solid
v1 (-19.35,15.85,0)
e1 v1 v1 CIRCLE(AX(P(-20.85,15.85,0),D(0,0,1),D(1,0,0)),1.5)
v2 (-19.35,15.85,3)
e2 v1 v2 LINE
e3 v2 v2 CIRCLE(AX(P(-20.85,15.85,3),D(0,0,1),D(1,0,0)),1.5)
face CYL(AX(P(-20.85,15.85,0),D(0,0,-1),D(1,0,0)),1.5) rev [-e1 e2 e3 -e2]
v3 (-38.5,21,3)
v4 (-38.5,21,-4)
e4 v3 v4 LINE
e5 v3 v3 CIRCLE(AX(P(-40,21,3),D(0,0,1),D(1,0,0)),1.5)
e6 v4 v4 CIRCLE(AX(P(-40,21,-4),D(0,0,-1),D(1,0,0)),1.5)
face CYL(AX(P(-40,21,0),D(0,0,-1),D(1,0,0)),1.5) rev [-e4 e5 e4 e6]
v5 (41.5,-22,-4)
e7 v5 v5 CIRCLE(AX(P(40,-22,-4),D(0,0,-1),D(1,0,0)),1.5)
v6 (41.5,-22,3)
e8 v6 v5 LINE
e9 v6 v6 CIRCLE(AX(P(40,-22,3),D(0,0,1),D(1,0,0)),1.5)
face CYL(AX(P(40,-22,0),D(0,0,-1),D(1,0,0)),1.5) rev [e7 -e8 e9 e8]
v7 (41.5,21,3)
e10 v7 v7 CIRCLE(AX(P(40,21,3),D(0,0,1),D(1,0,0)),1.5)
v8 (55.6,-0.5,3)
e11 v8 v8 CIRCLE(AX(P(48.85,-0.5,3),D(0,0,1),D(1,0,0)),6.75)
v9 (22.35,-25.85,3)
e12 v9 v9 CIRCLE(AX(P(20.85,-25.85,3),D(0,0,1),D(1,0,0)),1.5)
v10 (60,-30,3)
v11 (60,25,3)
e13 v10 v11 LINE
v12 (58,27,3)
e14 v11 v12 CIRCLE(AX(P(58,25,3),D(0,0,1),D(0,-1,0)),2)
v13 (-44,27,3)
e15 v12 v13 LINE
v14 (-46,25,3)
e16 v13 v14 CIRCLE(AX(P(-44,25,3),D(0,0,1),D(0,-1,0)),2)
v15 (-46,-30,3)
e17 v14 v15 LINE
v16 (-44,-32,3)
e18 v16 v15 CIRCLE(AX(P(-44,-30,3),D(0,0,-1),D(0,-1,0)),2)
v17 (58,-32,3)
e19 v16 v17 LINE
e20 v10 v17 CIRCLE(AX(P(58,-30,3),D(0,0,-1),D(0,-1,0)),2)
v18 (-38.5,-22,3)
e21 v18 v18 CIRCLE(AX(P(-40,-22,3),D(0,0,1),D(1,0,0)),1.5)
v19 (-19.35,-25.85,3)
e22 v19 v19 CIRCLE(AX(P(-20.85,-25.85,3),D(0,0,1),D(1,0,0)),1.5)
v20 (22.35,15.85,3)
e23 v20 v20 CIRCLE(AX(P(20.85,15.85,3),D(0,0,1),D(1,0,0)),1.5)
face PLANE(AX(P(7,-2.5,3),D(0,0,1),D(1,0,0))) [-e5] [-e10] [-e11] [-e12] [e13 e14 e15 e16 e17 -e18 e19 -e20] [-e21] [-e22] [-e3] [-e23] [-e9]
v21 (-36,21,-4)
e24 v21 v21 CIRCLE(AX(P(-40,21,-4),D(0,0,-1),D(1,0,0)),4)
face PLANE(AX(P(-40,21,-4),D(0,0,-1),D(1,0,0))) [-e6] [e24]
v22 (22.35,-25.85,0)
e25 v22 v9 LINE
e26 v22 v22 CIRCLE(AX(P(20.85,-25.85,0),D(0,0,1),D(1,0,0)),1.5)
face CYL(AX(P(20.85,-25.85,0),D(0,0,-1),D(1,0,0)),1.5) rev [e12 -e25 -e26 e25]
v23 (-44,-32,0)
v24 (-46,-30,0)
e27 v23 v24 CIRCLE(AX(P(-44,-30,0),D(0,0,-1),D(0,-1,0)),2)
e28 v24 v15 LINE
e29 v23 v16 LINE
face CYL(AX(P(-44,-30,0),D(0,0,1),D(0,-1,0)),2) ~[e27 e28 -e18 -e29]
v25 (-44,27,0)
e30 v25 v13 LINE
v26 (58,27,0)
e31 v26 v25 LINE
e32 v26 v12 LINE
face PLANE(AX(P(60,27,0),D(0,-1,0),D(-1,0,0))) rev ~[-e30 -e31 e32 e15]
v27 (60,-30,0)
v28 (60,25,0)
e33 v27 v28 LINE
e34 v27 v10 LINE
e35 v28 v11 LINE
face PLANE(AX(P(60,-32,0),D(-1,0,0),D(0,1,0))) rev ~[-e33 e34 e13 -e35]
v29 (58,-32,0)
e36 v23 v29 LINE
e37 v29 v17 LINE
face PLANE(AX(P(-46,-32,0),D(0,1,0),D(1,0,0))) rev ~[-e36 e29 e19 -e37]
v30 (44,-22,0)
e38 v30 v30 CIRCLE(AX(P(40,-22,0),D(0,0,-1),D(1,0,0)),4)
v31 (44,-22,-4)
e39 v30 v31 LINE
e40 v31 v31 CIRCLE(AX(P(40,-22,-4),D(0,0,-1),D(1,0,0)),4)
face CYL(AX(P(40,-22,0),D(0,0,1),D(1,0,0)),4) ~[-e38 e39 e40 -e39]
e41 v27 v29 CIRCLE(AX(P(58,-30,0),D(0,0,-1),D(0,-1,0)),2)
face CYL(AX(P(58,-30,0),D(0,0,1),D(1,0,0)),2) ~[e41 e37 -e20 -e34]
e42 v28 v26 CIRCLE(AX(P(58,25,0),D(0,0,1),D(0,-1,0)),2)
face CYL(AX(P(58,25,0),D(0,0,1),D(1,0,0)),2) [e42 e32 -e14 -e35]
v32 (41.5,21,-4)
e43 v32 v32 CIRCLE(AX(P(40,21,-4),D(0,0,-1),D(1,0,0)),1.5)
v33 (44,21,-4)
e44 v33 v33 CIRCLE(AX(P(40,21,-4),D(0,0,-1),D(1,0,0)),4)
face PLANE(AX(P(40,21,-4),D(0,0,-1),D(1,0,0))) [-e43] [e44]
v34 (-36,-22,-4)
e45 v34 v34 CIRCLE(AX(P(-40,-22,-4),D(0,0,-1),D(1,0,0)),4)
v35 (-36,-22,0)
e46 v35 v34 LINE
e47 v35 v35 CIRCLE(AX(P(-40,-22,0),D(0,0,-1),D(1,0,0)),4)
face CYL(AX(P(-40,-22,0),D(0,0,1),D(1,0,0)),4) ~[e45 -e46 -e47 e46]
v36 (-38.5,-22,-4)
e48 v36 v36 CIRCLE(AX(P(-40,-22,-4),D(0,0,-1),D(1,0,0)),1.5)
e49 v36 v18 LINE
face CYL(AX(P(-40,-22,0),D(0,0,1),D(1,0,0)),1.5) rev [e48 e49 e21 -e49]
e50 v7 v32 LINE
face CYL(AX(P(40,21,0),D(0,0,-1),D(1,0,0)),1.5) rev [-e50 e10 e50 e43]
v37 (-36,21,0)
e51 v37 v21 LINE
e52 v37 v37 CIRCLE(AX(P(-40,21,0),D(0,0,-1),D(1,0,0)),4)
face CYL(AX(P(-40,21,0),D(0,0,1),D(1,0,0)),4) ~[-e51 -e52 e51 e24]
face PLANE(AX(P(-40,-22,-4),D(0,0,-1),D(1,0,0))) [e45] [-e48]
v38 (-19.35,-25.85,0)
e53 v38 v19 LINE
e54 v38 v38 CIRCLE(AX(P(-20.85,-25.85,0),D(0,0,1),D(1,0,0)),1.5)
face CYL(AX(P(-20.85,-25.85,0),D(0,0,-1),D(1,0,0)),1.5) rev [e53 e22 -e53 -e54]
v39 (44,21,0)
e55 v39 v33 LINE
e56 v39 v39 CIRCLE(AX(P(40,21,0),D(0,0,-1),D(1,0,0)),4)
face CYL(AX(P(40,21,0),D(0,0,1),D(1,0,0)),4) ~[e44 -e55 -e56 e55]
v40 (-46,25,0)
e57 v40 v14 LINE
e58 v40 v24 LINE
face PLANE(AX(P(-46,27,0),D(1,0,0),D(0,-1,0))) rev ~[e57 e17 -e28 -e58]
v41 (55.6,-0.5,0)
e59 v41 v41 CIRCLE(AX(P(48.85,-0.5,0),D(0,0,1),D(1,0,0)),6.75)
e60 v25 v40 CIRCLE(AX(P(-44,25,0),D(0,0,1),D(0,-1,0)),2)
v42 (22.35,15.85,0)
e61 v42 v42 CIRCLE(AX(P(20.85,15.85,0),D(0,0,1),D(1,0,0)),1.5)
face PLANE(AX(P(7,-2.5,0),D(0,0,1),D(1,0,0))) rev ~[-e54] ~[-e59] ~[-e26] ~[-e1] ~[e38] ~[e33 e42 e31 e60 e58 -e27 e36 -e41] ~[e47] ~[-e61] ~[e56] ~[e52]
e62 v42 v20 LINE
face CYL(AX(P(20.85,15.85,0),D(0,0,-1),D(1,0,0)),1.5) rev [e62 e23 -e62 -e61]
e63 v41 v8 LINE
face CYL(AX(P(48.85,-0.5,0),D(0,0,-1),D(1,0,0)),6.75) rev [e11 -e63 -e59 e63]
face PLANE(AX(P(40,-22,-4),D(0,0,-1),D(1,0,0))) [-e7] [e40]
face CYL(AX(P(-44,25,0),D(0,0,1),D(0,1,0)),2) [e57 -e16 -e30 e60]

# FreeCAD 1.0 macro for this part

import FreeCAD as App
import Part
import Sketcher
Q = App.Units.Quantity


def edges_at(feature, points):
    """Names of the edges that pass closest to the given points."""
    edges = feature.Shape.Edges
    near = lambda p: min(range(len(edges)), key=lambda i: edges[i].distToShape(Part.Vertex(*p))[0])
    return sorted({f"Edge{near(p) + 1}" for p in points})


def add_polygon(sketch, points):
    """Adds a closed chain of lines whose ends are joined by coincident constraints."""
    first, n = sketch.GeometryCount, len(points)
    for a, b in zip(points, points[1:] + points[:1]):
        sketch.addGeometry(Part.LineSegment(App.Vector(*a, 0), App.Vector(*b, 0)), False)
    for i in range(n):
        sketch.addConstraint(Sketcher.Constraint("Coincident", first + i, 2, first + (i + 1) % n, 1))

doc = App.newDocument("Part")
params = doc.addObject("Spreadsheet::Sheet", "Params")
for row, (alias, value) in enumerate([
    ("sketch1_diameter", "3 mm"),
    ("sketch1_diameter2", "13.5 mm"),
    ("sketch1_width", "106 mm"),
    ("sketch1_height", "59 mm"),
    ("pad1_length", "3 mm"),
    ("sketch2_diameter", "8 mm"),
    ("sketch2_diameter2", "3 mm"),
    ("pad2_length", "4 mm"),
    ("fillet_radius", "2 mm"),
], start=1):
    params.set(f"A{row}", alias)
    params.set(f"B{row}", "=" + value)
    params.setAlias(f"B{row}", alias)

body = doc.addObject("PartDesign::Body", "Body")

# Sketch on XY plane
sketch1 = body.newObject("Sketcher::SketchObject", "Sketch")
sketch1.AttachmentSupport = (doc.getObject("XY_Plane"), [""])
sketch1.MapMode = "FlatFace"
add_polygon(sketch1, [(-46, 27), (-46, -32), (60, -32), (60, 27)])  # lines 0-3
sketch1.addGeometry(Part.Circle(App.Vector(-40, -22, 0), App.Vector(0, 0, 1), 1.5), False)  # 4
sketch1.addGeometry(Part.Circle(App.Vector(-20.85, -25.85, 0), App.Vector(0, 0, 1), 1.5), False)  # 5
sketch1.addGeometry(Part.Circle(App.Vector(20.85, -25.85, 0), App.Vector(0, 0, 1), 1.5), False)  # 6
sketch1.addGeometry(Part.Circle(App.Vector(40, -22, 0), App.Vector(0, 0, 1), 1.5), False)  # 7
sketch1.addGeometry(Part.Circle(App.Vector(-20.85, 15.85, 0), App.Vector(0, 0, 1), 1.5), False)  # 8
sketch1.addGeometry(Part.Circle(App.Vector(-40, 21, 0), App.Vector(0, 0, 1), 1.5), False)  # 9
sketch1.addGeometry(Part.Circle(App.Vector(48.85, -0.5, 0), App.Vector(0, 0, 1), 6.75), False)  # 10
sketch1.addGeometry(Part.Circle(App.Vector(20.85, 15.85, 0), App.Vector(0, 0, 1), 1.5), False)  # 11
sketch1.addGeometry(Part.Circle(App.Vector(40, 21, 0), App.Vector(0, 0, 1), 1.5), False)  # 12
sketch1.addConstraint([
    Sketcher.Constraint("Vertical", 0),
    Sketcher.Constraint("Horizontal", 1),
    Sketcher.Constraint("Vertical", 2),
    Sketcher.Constraint("Horizontal", 3),
    Sketcher.Constraint("Equal", 4, 5),
    Sketcher.Constraint("Equal", 5, 6),
    Sketcher.Constraint("Equal", 6, 7),
    Sketcher.Constraint("Equal", 7, 8),
    Sketcher.Constraint("Equal", 8, 9),
    Sketcher.Constraint("Equal", 9, 11),
    Sketcher.Constraint("Equal", 11, 12),
    Sketcher.Constraint("Symmetric", 5, 3, 6, 3, -2),
    Sketcher.Constraint("Symmetric", 4, 3, 7, 3, -2),
    Sketcher.Constraint("Symmetric", 8, 3, 11, 3, -2),
    Sketcher.Constraint("Symmetric", 9, 3, 12, 3, -2),
    Sketcher.Constraint("Vertical", 5, 3, 8, 3),
    Sketcher.Constraint("Vertical", 4, 3, 9, 3),
    Sketcher.Constraint("Diameter", 4, Q("3 mm")),
    Sketcher.Constraint("Diameter", 10, Q("13.5 mm")),
    Sketcher.Constraint("DistanceX", 1, 1, 1, 2, Q("106 mm")),
    Sketcher.Constraint("DistanceY", 0, 2, 0, 1, Q("59 mm")),
    Sketcher.Constraint("DistanceX", 4, 3, -1, 1, Q("40 mm")),
    Sketcher.Constraint("DistanceY", 4, 3, -1, 1, Q("22 mm")),
    Sketcher.Constraint("DistanceY", -1, 1, 9, 3, Q("21 mm")),
    Sketcher.Constraint("DistanceX", 0, 2, -1, 1, Q("46 mm")),
    Sketcher.Constraint("DistanceY", 0, 2, -1, 1, Q("32 mm")),
    Sketcher.Constraint("DistanceX", 6, 3, 10, 3, Q("28 mm")),
    Sketcher.Constraint("DistanceY", 10, 3, -1, 1, Q("0.5 mm")),
    Sketcher.Constraint("DistanceX", 5, 3, 6, 3, Q("41.7 mm")),
    Sketcher.Constraint("DistanceY", 5, 3, 8, 3, Q("41.7 mm")),
    Sketcher.Constraint("DistanceY", 5, 3, -1, 1, Q("25.85 mm")),
])
sketch1.setExpression("Constraints[21]", "Params.sketch1_diameter")
sketch1.setExpression("Constraints[22]", "Params.sketch1_diameter2")
sketch1.setExpression("Constraints[23]", "Params.sketch1_width")
sketch1.setExpression("Constraints[24]", "Params.sketch1_height")
pad1 = body.newObject("PartDesign::Pad", "Pad")
pad1.Profile = sketch1
pad1.setExpression("Length", "Params.pad1_length")

# Sketch on XY plane
sketch2 = body.newObject("Sketcher::SketchObject", "Sketch001")
sketch2.AttachmentSupport = (doc.getObject("XY_Plane"), [""])
sketch2.MapMode = "FlatFace"
sketch2.addGeometry([
    Part.Circle(App.Vector(-40, -22, 0), App.Vector(0, 0, 1), 4),  # 0
    Part.Circle(App.Vector(-40, -22, 0), App.Vector(0, 0, 1), 1.5),  # 1
    Part.Circle(App.Vector(40, -22, 0), App.Vector(0, 0, 1), 4),  # 2
    Part.Circle(App.Vector(40, -22, 0), App.Vector(0, 0, 1), 1.5),  # 3
    Part.Circle(App.Vector(-40, 21, 0), App.Vector(0, 0, 1), 4),  # 4
    Part.Circle(App.Vector(-40, 21, 0), App.Vector(0, 0, 1), 1.5),  # 5
    Part.Circle(App.Vector(40, 21, 0), App.Vector(0, 0, 1), 4),  # 6
    Part.Circle(App.Vector(40, 21, 0), App.Vector(0, 0, 1), 1.5),  # 7
], False)
sketch2.addConstraint([
    Sketcher.Constraint("Coincident", 1, 3, 0, 3),
    Sketcher.Constraint("Coincident", 3, 3, 2, 3),
    Sketcher.Constraint("Coincident", 5, 3, 4, 3),
    Sketcher.Constraint("Coincident", 7, 3, 6, 3),
    Sketcher.Constraint("Equal", 0, 2),
    Sketcher.Constraint("Equal", 1, 3),
    Sketcher.Constraint("Equal", 2, 4),
    Sketcher.Constraint("Equal", 3, 5),
    Sketcher.Constraint("Equal", 4, 6),
    Sketcher.Constraint("Equal", 5, 7),
    Sketcher.Constraint("Symmetric", 0, 3, 2, 3, -2),
    Sketcher.Constraint("Symmetric", 4, 3, 6, 3, -2),
    Sketcher.Constraint("Vertical", 1, 3, 4, 3),
    Sketcher.Constraint("Diameter", 0, Q("8 mm")),
    Sketcher.Constraint("Diameter", 1, Q("3 mm")),
    Sketcher.Constraint("DistanceX", 0, 3, -1, 1, Q("40 mm")),
    Sketcher.Constraint("DistanceY", 0, 3, -1, 1, Q("22 mm")),
    Sketcher.Constraint("DistanceY", -1, 1, 4, 3, Q("21 mm")),
])
sketch2.setExpression("Constraints[13]", "Params.sketch2_diameter")
sketch2.setExpression("Constraints[14]", "Params.sketch2_diameter2")
pad2 = body.newObject("PartDesign::Pad", "Pad001")
pad2.Profile = sketch2
pad2.setExpression("Length", "Params.pad2_length")
pad2.Reversed = True
doc.recompute()

fillet = body.newObject("PartDesign::Fillet", "Fillet")
fillet.Base = (pad2, edges_at(pad2, [
    (-46, 27, 1.5),
    (-46, -32, 1.5),
    (60, -32, 1.5),
    (60, 27, 1.5),
]))
fillet.setExpression("Radius", "Params.fillet_radius")

doc.recompute()
